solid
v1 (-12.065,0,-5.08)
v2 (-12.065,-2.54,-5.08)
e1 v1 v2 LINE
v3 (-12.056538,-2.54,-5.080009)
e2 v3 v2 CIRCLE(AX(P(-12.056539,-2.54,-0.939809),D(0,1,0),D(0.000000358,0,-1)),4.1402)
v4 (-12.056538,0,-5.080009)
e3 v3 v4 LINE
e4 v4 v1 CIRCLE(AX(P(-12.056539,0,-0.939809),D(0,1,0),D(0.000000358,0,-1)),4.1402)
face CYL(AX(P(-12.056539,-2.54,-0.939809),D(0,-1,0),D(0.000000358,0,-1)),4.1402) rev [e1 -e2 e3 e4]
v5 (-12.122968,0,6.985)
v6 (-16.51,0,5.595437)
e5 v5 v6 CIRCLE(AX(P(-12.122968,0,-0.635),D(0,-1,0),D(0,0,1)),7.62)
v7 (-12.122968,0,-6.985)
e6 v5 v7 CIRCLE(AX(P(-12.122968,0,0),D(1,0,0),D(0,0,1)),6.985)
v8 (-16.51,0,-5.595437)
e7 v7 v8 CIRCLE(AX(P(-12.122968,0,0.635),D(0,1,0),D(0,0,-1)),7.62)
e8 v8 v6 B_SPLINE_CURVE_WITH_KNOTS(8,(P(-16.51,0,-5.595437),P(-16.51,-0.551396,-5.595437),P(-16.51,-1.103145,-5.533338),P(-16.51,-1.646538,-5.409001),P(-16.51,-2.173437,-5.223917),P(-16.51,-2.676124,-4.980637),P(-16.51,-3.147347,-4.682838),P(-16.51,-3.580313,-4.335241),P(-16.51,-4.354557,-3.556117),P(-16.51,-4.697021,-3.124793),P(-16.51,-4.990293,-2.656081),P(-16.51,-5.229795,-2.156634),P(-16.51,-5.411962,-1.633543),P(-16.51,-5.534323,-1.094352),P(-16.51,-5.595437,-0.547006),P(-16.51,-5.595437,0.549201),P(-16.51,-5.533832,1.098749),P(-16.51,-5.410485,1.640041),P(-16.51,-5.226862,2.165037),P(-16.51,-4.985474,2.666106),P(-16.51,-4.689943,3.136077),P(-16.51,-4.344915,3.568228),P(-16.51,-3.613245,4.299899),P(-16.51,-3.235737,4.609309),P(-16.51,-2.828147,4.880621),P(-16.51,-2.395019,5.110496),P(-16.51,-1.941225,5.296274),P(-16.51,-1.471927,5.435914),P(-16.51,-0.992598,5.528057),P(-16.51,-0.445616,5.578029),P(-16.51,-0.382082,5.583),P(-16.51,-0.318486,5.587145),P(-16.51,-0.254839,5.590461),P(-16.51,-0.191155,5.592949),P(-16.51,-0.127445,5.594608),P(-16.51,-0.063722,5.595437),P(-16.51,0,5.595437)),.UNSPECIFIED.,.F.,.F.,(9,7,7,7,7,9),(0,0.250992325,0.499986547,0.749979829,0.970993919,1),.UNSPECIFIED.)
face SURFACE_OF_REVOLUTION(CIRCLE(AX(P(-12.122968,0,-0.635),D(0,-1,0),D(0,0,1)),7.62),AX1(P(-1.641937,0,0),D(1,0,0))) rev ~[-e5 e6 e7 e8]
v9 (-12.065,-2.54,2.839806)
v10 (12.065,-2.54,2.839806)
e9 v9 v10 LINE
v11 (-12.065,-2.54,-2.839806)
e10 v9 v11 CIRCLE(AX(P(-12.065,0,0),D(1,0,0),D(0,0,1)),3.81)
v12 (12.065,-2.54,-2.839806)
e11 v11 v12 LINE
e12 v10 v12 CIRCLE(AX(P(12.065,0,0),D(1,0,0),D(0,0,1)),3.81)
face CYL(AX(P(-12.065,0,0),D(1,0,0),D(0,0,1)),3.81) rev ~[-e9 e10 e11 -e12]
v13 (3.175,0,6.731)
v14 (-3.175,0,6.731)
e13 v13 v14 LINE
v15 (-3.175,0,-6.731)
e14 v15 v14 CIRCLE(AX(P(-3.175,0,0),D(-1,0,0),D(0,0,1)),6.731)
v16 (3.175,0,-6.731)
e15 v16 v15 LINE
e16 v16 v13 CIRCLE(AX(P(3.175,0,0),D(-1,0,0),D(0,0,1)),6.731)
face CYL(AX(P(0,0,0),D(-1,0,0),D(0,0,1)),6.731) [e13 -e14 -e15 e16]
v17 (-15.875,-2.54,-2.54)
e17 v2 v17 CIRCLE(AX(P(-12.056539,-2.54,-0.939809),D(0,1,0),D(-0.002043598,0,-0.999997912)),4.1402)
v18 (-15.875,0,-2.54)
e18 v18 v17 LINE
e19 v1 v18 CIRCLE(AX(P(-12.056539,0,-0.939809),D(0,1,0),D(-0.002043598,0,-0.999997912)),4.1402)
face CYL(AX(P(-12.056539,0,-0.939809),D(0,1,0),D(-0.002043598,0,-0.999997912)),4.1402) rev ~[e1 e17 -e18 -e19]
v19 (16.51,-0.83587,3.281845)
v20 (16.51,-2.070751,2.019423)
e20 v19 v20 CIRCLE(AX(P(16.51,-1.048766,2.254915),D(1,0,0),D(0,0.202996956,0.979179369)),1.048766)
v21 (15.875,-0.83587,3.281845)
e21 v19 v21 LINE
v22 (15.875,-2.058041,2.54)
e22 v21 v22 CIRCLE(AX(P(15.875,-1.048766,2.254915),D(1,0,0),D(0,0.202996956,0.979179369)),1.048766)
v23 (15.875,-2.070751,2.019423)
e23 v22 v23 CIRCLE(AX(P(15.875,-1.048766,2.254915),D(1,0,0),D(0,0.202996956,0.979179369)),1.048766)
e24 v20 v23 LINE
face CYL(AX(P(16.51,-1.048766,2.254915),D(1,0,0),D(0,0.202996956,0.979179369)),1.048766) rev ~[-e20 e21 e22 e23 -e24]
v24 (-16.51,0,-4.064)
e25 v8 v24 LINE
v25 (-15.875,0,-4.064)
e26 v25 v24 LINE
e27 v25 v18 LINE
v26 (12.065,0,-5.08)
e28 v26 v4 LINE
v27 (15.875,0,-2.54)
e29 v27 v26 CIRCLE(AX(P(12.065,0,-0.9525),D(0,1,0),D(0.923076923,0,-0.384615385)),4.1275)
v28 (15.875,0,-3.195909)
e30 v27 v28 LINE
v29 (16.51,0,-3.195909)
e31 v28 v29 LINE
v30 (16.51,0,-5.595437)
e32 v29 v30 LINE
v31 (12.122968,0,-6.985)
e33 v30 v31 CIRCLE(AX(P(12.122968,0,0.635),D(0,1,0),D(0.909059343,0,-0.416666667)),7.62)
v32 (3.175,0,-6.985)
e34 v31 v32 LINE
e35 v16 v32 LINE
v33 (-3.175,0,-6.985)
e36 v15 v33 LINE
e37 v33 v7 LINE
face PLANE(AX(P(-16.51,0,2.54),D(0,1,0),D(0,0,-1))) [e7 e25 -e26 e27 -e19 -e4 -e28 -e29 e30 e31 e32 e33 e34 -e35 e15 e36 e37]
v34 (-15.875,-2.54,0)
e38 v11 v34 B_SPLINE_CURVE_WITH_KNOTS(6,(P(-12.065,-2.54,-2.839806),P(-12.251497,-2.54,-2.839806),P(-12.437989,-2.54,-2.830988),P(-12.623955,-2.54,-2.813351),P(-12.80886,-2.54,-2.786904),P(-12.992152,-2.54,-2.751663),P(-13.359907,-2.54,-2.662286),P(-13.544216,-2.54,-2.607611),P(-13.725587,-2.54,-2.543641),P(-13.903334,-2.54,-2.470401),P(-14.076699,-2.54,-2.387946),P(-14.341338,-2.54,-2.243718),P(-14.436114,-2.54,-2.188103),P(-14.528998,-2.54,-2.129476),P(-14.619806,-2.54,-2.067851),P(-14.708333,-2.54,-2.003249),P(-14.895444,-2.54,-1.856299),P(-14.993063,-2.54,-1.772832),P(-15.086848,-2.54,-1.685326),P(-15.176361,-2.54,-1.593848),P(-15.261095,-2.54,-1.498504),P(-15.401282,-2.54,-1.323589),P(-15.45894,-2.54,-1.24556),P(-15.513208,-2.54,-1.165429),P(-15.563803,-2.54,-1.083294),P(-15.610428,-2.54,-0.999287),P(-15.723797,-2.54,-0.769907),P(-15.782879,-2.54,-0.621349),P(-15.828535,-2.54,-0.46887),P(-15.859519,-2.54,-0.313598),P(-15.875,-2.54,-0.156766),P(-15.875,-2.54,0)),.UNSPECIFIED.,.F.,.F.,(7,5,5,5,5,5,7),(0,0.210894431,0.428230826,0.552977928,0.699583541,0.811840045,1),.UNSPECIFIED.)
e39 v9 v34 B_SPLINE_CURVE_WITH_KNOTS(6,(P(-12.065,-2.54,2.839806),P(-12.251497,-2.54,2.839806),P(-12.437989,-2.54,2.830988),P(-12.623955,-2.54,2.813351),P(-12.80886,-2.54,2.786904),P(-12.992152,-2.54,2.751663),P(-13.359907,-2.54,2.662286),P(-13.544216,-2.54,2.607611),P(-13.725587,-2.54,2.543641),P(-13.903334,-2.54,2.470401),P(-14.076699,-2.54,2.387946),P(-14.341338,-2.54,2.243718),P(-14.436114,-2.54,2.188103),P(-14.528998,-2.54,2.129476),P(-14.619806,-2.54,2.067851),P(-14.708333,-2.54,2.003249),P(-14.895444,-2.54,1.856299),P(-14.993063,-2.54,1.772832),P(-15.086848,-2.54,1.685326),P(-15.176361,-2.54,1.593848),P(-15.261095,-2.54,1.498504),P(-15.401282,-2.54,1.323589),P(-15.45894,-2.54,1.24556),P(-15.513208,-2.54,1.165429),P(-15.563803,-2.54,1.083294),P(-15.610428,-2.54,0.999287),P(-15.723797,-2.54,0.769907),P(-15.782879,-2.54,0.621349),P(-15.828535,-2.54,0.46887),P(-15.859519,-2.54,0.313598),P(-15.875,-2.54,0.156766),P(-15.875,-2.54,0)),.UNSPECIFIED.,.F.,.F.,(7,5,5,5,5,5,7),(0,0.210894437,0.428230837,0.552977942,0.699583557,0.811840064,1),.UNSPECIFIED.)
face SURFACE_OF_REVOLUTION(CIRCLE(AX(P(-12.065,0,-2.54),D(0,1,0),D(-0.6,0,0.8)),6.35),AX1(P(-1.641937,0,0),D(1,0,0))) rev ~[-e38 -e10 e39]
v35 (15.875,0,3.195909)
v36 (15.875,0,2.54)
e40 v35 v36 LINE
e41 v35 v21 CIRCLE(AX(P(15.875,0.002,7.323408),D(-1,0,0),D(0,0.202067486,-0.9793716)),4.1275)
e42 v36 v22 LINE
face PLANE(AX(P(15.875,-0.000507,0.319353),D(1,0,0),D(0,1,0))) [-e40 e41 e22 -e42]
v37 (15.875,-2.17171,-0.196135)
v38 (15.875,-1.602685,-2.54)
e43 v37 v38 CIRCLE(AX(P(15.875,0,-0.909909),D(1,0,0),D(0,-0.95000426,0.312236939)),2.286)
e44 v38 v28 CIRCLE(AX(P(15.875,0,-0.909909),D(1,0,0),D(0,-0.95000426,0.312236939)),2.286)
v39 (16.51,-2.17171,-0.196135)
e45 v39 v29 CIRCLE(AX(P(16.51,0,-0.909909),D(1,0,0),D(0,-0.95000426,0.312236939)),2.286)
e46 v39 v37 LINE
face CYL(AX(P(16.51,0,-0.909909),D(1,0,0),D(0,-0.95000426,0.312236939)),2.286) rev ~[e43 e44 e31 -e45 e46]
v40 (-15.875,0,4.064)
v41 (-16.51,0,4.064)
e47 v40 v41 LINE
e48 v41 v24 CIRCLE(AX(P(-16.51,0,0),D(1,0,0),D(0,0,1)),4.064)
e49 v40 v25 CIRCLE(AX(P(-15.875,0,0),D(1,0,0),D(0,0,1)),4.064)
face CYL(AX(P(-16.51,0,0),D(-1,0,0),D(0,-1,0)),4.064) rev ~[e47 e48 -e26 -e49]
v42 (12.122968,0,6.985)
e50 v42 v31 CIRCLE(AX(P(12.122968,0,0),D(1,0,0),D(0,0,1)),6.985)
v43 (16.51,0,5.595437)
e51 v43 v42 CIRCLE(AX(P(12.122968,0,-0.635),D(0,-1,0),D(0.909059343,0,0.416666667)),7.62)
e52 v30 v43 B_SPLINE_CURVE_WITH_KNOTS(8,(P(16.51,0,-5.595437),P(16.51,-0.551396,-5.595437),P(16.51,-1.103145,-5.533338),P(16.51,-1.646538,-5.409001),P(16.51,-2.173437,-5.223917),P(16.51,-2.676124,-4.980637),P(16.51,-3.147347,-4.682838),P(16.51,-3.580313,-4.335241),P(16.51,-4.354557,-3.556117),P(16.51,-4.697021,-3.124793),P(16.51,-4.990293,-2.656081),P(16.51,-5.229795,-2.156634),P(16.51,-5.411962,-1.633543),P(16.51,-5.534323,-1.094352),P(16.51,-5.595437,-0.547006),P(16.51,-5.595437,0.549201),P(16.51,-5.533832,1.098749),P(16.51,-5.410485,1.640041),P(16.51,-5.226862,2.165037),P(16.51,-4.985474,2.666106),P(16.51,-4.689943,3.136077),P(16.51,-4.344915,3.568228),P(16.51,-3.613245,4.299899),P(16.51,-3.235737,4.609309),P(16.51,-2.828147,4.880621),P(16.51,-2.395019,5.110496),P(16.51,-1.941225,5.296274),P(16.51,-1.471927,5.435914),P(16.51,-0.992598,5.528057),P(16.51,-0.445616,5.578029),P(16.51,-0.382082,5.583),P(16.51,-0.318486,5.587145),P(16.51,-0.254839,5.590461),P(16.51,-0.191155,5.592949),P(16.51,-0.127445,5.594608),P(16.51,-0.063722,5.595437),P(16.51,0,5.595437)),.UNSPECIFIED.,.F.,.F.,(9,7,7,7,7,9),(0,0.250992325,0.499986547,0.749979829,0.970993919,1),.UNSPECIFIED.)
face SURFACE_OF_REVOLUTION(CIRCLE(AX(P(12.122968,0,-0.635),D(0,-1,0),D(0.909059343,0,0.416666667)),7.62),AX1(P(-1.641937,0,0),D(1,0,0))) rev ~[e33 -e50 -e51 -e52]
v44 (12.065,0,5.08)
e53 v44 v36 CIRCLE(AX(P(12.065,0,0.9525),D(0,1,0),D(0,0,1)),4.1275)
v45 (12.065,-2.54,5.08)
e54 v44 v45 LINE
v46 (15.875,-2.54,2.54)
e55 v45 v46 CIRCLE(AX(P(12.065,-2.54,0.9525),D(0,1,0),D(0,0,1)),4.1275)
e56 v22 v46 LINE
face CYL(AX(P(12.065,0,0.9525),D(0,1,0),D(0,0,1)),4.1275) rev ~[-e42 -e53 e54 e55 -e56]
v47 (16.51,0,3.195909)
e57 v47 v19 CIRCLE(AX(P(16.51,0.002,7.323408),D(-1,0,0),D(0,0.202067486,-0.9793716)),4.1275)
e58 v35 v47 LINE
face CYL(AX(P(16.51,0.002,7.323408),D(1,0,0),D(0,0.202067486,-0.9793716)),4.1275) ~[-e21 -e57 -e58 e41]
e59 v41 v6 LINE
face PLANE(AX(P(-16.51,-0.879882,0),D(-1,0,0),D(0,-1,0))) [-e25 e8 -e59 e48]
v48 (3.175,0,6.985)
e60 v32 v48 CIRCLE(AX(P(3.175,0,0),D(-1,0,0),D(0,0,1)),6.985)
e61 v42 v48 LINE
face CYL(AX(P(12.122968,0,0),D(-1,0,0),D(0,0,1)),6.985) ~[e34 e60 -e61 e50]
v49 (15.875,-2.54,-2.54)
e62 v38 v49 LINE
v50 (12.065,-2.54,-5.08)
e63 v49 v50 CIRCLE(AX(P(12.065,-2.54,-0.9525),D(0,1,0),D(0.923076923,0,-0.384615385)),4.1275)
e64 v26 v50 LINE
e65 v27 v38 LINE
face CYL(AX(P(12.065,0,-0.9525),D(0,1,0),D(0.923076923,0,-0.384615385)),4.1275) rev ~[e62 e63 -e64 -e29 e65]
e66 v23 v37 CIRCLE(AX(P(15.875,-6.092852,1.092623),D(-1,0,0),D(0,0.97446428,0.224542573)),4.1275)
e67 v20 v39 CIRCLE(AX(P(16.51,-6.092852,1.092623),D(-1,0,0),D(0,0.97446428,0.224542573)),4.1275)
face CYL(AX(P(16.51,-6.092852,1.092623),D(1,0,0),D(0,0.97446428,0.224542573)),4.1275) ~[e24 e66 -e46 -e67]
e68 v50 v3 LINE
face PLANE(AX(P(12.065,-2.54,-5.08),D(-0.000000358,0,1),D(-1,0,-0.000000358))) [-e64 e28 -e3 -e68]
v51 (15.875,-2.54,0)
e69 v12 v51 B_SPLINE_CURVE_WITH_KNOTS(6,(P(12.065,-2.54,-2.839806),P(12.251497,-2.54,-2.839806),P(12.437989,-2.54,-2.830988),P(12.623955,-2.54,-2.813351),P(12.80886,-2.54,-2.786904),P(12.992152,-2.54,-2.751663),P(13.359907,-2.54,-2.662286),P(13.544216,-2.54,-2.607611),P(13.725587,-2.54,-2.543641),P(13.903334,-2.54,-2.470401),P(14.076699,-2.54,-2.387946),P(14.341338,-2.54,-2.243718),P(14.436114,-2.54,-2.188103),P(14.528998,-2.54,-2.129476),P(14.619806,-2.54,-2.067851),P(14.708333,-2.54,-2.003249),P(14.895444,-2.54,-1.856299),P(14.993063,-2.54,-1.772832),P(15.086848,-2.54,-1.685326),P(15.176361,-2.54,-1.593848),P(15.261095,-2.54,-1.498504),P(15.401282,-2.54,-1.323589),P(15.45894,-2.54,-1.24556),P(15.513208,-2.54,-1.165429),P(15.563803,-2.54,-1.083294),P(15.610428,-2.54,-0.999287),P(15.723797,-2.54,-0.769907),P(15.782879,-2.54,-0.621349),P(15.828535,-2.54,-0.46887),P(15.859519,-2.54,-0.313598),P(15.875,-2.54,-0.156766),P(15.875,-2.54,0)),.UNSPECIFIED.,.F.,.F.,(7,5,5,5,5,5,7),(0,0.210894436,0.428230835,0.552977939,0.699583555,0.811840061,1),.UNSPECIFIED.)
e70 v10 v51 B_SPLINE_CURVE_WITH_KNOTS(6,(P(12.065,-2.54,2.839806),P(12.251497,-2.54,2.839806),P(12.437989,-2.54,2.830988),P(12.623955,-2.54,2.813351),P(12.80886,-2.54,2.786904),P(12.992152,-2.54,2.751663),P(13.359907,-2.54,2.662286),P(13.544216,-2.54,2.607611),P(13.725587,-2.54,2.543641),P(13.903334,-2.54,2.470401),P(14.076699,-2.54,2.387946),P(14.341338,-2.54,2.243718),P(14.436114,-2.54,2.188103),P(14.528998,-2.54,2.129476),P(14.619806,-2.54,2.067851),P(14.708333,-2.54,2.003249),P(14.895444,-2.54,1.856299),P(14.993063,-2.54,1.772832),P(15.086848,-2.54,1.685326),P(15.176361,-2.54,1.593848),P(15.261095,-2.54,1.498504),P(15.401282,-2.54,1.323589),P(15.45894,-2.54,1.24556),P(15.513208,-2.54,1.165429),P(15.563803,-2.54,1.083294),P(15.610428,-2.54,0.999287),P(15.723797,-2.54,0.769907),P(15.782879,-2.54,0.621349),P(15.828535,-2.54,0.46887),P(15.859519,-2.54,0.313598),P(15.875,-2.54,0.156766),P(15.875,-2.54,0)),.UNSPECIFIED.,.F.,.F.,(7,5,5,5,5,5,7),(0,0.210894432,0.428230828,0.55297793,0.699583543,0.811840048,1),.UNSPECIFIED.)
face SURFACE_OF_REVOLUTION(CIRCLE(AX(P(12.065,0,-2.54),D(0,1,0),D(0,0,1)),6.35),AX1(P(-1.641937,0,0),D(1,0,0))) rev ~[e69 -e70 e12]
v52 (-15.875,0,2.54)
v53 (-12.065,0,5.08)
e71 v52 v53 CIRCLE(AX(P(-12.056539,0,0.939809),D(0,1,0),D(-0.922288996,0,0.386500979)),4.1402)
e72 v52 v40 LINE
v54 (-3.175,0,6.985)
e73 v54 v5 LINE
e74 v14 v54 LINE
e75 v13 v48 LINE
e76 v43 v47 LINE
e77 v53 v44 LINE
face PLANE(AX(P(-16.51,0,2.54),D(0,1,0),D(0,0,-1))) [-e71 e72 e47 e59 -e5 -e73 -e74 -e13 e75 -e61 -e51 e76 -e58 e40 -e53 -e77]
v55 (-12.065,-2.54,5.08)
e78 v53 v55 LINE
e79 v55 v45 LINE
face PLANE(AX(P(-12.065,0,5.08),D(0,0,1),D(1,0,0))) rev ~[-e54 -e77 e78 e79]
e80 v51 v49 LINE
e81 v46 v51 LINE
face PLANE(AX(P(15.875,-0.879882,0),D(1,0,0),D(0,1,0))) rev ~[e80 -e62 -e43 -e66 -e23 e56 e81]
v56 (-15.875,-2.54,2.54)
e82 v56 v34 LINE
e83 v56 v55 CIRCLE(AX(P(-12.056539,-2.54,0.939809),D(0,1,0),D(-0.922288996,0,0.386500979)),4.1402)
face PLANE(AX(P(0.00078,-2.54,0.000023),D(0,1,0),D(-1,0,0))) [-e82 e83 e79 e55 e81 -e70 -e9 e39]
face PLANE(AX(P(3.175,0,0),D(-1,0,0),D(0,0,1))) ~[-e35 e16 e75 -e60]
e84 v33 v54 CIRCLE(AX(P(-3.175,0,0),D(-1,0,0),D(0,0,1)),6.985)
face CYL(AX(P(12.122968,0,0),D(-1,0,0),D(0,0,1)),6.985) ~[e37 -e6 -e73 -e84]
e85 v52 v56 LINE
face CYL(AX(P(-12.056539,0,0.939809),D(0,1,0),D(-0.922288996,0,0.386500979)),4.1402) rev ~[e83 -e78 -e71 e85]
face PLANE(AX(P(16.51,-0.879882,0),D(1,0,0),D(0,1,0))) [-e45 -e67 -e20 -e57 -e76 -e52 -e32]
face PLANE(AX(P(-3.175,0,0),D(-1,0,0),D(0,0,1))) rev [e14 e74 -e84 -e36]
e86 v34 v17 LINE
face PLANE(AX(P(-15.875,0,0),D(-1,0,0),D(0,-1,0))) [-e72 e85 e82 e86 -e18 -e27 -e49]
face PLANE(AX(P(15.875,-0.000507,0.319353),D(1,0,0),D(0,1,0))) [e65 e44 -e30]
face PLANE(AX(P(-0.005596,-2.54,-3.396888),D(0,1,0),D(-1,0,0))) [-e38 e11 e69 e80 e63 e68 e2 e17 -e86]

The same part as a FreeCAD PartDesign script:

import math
import FreeCAD as App
import Part
import Sketcher
Q = App.Units.Quantity

doc = App.newDocument("Part")
body = doc.addObject("PartDesign::Body", "Body")

# Sketch on XZ plane
sketch1 = body.newObject("Sketcher::SketchObject", "Sketch")
sketch1.AttachmentSupport = (doc.getObject("XZ_Plane"), [""])
sketch1.MapMode = "FlatFace"
sketch1.addGeometry(Part.ArcOfCircle(Part.Circle(App.Vector(12.1, -0.6, 0), App.Vector(0, 0, 1), 7.6), math.radians(25), math.radians(90)), False)
sketch1.addGeometry(Part.LineSegment(App.Vector(12.1, 7, 0), App.Vector(-12.1, 7, 0)), False)
sketch1.addGeometry(Part.ArcOfCircle(Part.Circle(App.Vector(-12.1, -0.6, 0), App.Vector(0, 0, 1), 7.6), math.radians(90), math.radians(155)), False)
sketch1.addGeometry(Part.LineSegment(App.Vector(-19.1, 2.5, 0), App.Vector(-15.9, 2.5, 0)), False)
sketch1.addGeometry(Part.ArcOfCircle(Part.Circle(App.Vector(-12.1, -2.5, 0), App.Vector(0, 0, 1), 6.3), math.radians(90), math.radians(127)), False)
sketch1.addGeometry(Part.LineSegment(App.Vector(-12.1, 3.8, 0), App.Vector(12.1, 3.8, 0)), False)
sketch1.addGeometry(Part.ArcOfCircle(Part.Circle(App.Vector(12.1, -2.5, 0), App.Vector(0, 0, 1), 6.3), math.radians(53), math.radians(90)), False)
sketch1.addGeometry(Part.LineSegment(App.Vector(15.9, 2.5, 0), App.Vector(19.1, 2.5, 0)), False)
sketch1.addConstraint(Sketcher.Constraint("Tangent", 0, 2, 1, 1))
sketch1.addConstraint(Sketcher.Constraint("Tangent", 1, 2, 2, 1))
sketch1.addConstraint(Sketcher.Constraint("Coincident", 2, 2, 3, 1))
sketch1.addConstraint(Sketcher.Constraint("Coincident", 3, 2, 4, 2))
sketch1.addConstraint(Sketcher.Constraint("Tangent", 4, 1, 5, 1))
sketch1.addConstraint(Sketcher.Constraint("Tangent", 5, 2, 6, 2))
sketch1.addConstraint(Sketcher.Constraint("Coincident", 6, 1, 7, 1))
sketch1.addConstraint(Sketcher.Constraint("Coincident", 7, 2, 0, 1))
sketch1.addConstraint(Sketcher.Constraint("Horizontal", 1))
sketch1.addConstraint(Sketcher.Constraint("Horizontal", 3))
sketch1.addConstraint(Sketcher.Constraint("Horizontal", 5))
sketch1.addConstraint(Sketcher.Constraint("Horizontal", 7))
sketch1.addConstraint(Sketcher.Constraint("Equal", 0, 2))
sketch1.addConstraint(Sketcher.Constraint("Equal", 4, 6))
sketch1.addConstraint(Sketcher.Constraint("Symmetric", 3, 2, 6, 1, -2))
sketch1.addConstraint(Sketcher.Constraint("Equal", 3, 7))
sketch1.addConstraint(Sketcher.Constraint("Radius", 0, Q("0.3 in")))
sketch1.addConstraint(Sketcher.Constraint("Radius", 4, Q("0.25 in")))
sketch1.addConstraint(Sketcher.Constraint("DistanceX", 5, 1, 5, 2, Q("0.95 in")))
sketch1.addConstraint(Sketcher.Constraint("DistanceY", 4, 3, -1, 1, Q("0.1 in")))
sketch1.addConstraint(Sketcher.Constraint("DistanceY", -1, 1, 2, 2, Q("0.1 in")))
sketch1.addConstraint(Sketcher.Constraint("DistanceX", 3, 1, 3, 2, Q("0.125 in")))
sketch1.addConstraint(Sketcher.Constraint("DistanceY", 0, 3, -1, 1, Q("0.025 in")))
revolution = body.newObject("PartDesign::Revolution", "Revolution")
revolution.Profile = sketch1
revolution.ReferenceAxis = (sketch1, ["H_Axis"])
revolution.Angle = 180

# Sketch on XZ plane
sketch2 = body.newObject("Sketcher::SketchObject", "Sketch001")
sketch2.AttachmentSupport = (doc.getObject("XZ_Plane"), [""])
sketch2.MapMode = "FlatFace"
sketch2.addGeometry(Part.ArcOfCircle(Part.Circle(App.Vector(-12.1, 2.5, 0), App.Vector(0, 0, 1), 6.3), math.radians(-127), math.radians(-90)), False)
sketch2.addGeometry(Part.LineSegment(App.Vector(-12.1, -3.8, 0), App.Vector(12.1, -3.8, 0)), False)
sketch2.addGeometry(Part.ArcOfCircle(Part.Circle(App.Vector(12.1, 2.5, 0), App.Vector(0, 0, 1), 6.3), math.radians(-90), math.radians(-53)), False)
sketch2.addGeometry(Part.ArcOfCircle(Part.Circle(App.Vector(12.1, -1, 0), App.Vector(0, 0, 1), 4.1), math.radians(-90), math.radians(-23)), False)
sketch2.addGeometry(Part.LineSegment(App.Vector(12.1, -5.1, 0), App.Vector(-12.1, -5.1, 0)), False)
sketch2.addGeometry(Part.ArcOfCircle(Part.Circle(App.Vector(-12.1, -0.9, 0), App.Vector(0, 0, 1), 4.1), math.radians(-157), math.radians(-90)), False)
sketch2.addGeometry(Part.ArcOfCircle(Part.Circle(App.Vector(-12.1, 0.9, 0), App.Vector(0, 0, 1), 4.1), math.radians(90), math.radians(157)), False)
sketch2.addGeometry(Part.LineSegment(App.Vector(-12.1, 5.1, 0), App.Vector(12.1, 5.1, 0)), False)
sketch2.addGeometry(Part.ArcOfCircle(Part.Circle(App.Vector(12.1, 1, 0), App.Vector(0, 0, 1), 4.1), math.radians(23), math.radians(90)), False)
sketch2.addGeometry(Part.ArcOfCircle(Part.Circle(App.Vector(12.1, -2.5, 0), App.Vector(0, 0, 1), 6.3), math.radians(53), math.radians(90)), False)
sketch2.addGeometry(Part.LineSegment(App.Vector(12.1, 3.8, 0), App.Vector(-12.1, 3.8, 0)), False)
sketch2.addGeometry(Part.ArcOfCircle(Part.Circle(App.Vector(-12.1, -2.5, 0), App.Vector(0, 0, 1), 6.3), math.radians(90), math.radians(127)), False)
sketch2.addConstraint(Sketcher.Constraint("Tangent", 0, 2, 1, 1))
sketch2.addConstraint(Sketcher.Constraint("Tangent", 1, 2, 2, 1))
sketch2.addConstraint(Sketcher.Constraint("Coincident", 2, 2, 3, 2))
sketch2.addConstraint(Sketcher.Constraint("Tangent", 3, 1, 4, 1))
sketch2.addConstraint(Sketcher.Constraint("Coincident", 4, 2, 5, 2))
sketch2.addConstraint(Sketcher.Constraint("Coincident", 5, 1, 0, 1))
sketch2.addConstraint(Sketcher.Constraint("Coincident", 6, 1, 7, 1))
sketch2.addConstraint(Sketcher.Constraint("Tangent", 7, 2, 8, 2))
sketch2.addConstraint(Sketcher.Constraint("Coincident", 8, 1, 9, 1))
sketch2.addConstraint(Sketcher.Constraint("Tangent", 9, 2, 10, 1))
sketch2.addConstraint(Sketcher.Constraint("Tangent", 10, 2, 11, 1))
sketch2.addConstraint(Sketcher.Constraint("Coincident", 11, 2, 6, 2))
sketch2.addConstraint(Sketcher.Constraint("Horizontal", 1))
sketch2.addConstraint(Sketcher.Constraint("Horizontal", 4))
sketch2.addConstraint(Sketcher.Constraint("Horizontal", 7))
sketch2.addConstraint(Sketcher.Constraint("Horizontal", 10))
sketch2.addConstraint(Sketcher.Constraint("Equal", 0, 2))
sketch2.addConstraint(Sketcher.Constraint("Equal", 5, 6))
sketch2.addConstraint(Sketcher.Constraint("Equal", 3, 8))
sketch2.addConstraint(Sketcher.Constraint("Equal", 2, 9))
sketch2.addConstraint(Sketcher.Constraint("Equal", 9, 11))
sketch2.addConstraint(Sketcher.Constraint("Symmetric", 0, 3, 9, 3, -1, 1))
sketch2.addConstraint(Sketcher.Constraint("Symmetric", 3, 1, 6, 1, -1, 1))
sketch2.addConstraint(Sketcher.Constraint("Symmetric", 2, 2, 11, 2, -1, 1))
sketch2.addConstraint(Sketcher.Constraint("Symmetric", 2, 2, 5, 1, -2))
sketch2.addConstraint(Sketcher.Constraint("Horizontal", 11, 3, 2, 2))
sketch2.addConstraint(Sketcher.Constraint("Horizontal", 2, 3, 8, 1))
sketch2.addConstraint(Sketcher.Constraint("Vertical", 2, 3, 3, 3))
sketch2.addConstraint(Sketcher.Constraint("Vertical", 0, 2, 4, 2))
sketch2.addConstraint(Sketcher.Constraint("Radius", 0, Q("0.25 in")))
sketch2.addConstraint(Sketcher.Constraint("Radius", 5, Q("0.163 in")))
sketch2.addConstraint(Sketcher.Constraint("DistanceX", 1, 1, 1, 2, Q("0.95 in")))
sketch2.addConstraint(Sketcher.Constraint("DistanceY", -1, 1, 0, 3, Q("0.1 in")))
sketch2.addConstraint(Sketcher.Constraint("DistanceY", 3, 1, -1, 1, Q("0.2 in")))
pocket1 = body.newObject("PartDesign::Pocket", "Pocket")
pocket1.Profile = sketch2
pocket1.Length = Q("0.1 in")
pocket1.Reversed = True

# Sketch on XZ plane
sketch3 = body.newObject("Sketcher::SketchObject", "Sketch002")
sketch3.AttachmentSupport = (doc.getObject("XZ_Plane"), [""])
sketch3.MapMode = "FlatFace"
sketch3.addGeometry(Part.LineSegment(App.Vector(3.2, 7.2, 0), App.Vector(3.2, 6.7, 0)), False)
sketch3.addGeometry(Part.LineSegment(App.Vector(3.2, 6.7, 0), App.Vector(-3.2, 6.7, 0)), False)
sketch3.addGeometry(Part.LineSegment(App.Vector(-3.2, 6.7, 0), App.Vector(-3.2, 7.2, 0)), False)
sketch3.addGeometry(Part.LineSegment(App.Vector(-3.2, 7.2, 0), App.Vector(3.2, 7.2, 0)), False)
sketch3.addConstraint(Sketcher.Constraint("Coincident", 0, 2, 1, 1))
sketch3.addConstraint(Sketcher.Constraint("Coincident", 1, 2, 2, 1))
sketch3.addConstraint(Sketcher.Constraint("Coincident", 2, 2, 3, 1))
sketch3.addConstraint(Sketcher.Constraint("Coincident", 3, 2, 0, 1))
sketch3.addConstraint(Sketcher.Constraint("Vertical", 0))
sketch3.addConstraint(Sketcher.Constraint("Horizontal", 1))
sketch3.addConstraint(Sketcher.Constraint("Vertical", 2))
sketch3.addConstraint(Sketcher.Constraint("Horizontal", 3))
sketch3.addConstraint(Sketcher.Constraint("DistanceX", 1, 2, 1, 1, Q("0.25 in")))
sketch3.addConstraint(Sketcher.Constraint("DistanceY", 0, 2, 0, 1, Q("0.02 in")))
sketch3.addConstraint(Sketcher.Constraint("DistanceX", -1, 1, 0, 2, Q("0.125 in")))
sketch3.addConstraint(Sketcher.Constraint("DistanceY", -1, 1, 0, 2, Q("0.265 in")))
groove = body.newObject("PartDesign::Groove", "Groove")
groove.Profile = sketch3
groove.ReferenceAxis = (sketch3, ["H_Axis"])
groove.Angle = 360

# Sketch on XZ plane
sketch4 = body.newObject("Sketcher::SketchObject", "Sketch003")
sketch4.AttachmentSupport = (doc.getObject("XZ_Plane"), [""])
sketch4.MapMode = "FlatFace"
sketch4.AttachmentOffset = App.Placement(App.Vector(0, 0, 0.1 * 25.4), App.Rotation())
sketch4.addGeometry(Part.LineSegment(App.Vector(-12.1, -3.3, 0), App.Vector(12.1, -3.3, 0)), False)
sketch4.addGeometry(Part.ArcOfCircle(Part.Circle(App.Vector(11.7, 3, 0), App.Vector(0, 0, 1), 6.3), math.radians(-87), math.radians(-49)), False)
sketch4.addGeometry(Part.LineSegment(App.Vector(15.9, -1.8, 0), App.Vector(15.9, -2.5, 0)), False)
sketch4.addGeometry(Part.ArcOfCircle(Part.Circle(App.Vector(12.1, 2.5, 0), App.Vector(0, 0, 1), 6.3), math.radians(-90), math.radians(-53)), False)
sketch4.addGeometry(Part.LineSegment(App.Vector(12.1, -3.8, 0), App.Vector(-12.1, -3.8, 0)), False)
sketch4.addGeometry(Part.ArcOfCircle(Part.Circle(App.Vector(-12.1, 2.5, 0), App.Vector(0, 0, 1), 6.3), math.radians(-127), math.radians(-90)), False)
sketch4.addGeometry(Part.LineSegment(App.Vector(-15.9, -2.5, 0), App.Vector(-15.9, -1.8, 0)), False)
sketch4.addGeometry(Part.ArcOfCircle(Part.Circle(App.Vector(-12.1, 2.2, 0), App.Vector(0, 0, 1), 5.5), math.radians(-134), math.radians(-90)), False)
sketch4.addGeometry(Part.ArcOfCircle(Part.Circle(App.Vector(-12.1, -2.5, 0), App.Vector(0, 0, 1), 6.3), math.radians(90), math.radians(127)), False)
sketch4.addGeometry(Part.LineSegment(App.Vector(-12.1, 3.8, 0), App.Vector(12.1, 3.8, 0)), False)
sketch4.addGeometry(Part.ArcOfCircle(Part.Circle(App.Vector(12.1, -2.5, 0), App.Vector(0, 0, 1), 6.3), math.radians(53), math.radians(90)), False)
sketch4.addGeometry(Part.LineSegment(App.Vector(15.9, 2.5, 0), App.Vector(15.9, 1.8, 0)), False)
sketch4.addGeometry(Part.ArcOfCircle(Part.Circle(App.Vector(11.7, -3, 0), App.Vector(0, 0, 1), 6.3), math.radians(49), math.radians(87)), False)
sketch4.addGeometry(Part.LineSegment(App.Vector(12.1, 3.3, 0), App.Vector(-12.1, 3.3, 0)), False)
sketch4.addGeometry(Part.ArcOfCircle(Part.Circle(App.Vector(-12.1, -2.2, 0), App.Vector(0, 0, 1), 5.5), math.radians(90), math.radians(134)), False)
sketch4.addGeometry(Part.LineSegment(App.Vector(-15.9, 1.8, 0), App.Vector(-15.9, 2.5, 0)), False)
sketch4.addConstraint(Sketcher.Constraint("Coincident", 0, 2, 1, 1))
sketch4.addConstraint(Sketcher.Constraint("Coincident", 1, 2, 2, 1))
sketch4.addConstraint(Sketcher.Constraint("Coincident", 2, 2, 3, 2))
sketch4.addConstraint(Sketcher.Constraint("Tangent", 3, 1, 4, 1))
sketch4.addConstraint(Sketcher.Constraint("Tangent", 4, 2, 5, 2))
sketch4.addConstraint(Sketcher.Constraint("Coincident", 5, 1, 6, 1))
sketch4.addConstraint(Sketcher.Constraint("Coincident", 6, 2, 7, 1))
sketch4.addConstraint(Sketcher.Constraint("Tangent", 7, 2, 0, 1))
sketch4.addConstraint(Sketcher.Constraint("Tangent", 8, 1, 9, 1))
sketch4.addConstraint(Sketcher.Constraint("Tangent", 9, 2, 10, 2))
sketch4.addConstraint(Sketcher.Constraint("Coincident", 10, 1, 11, 1))
sketch4.addConstraint(Sketcher.Constraint("Coincident", 11, 2, 12, 1))
sketch4.addConstraint(Sketcher.Constraint("Coincident", 12, 2, 13, 1))
sketch4.addConstraint(Sketcher.Constraint("Tangent", 13, 2, 14, 1))
sketch4.addConstraint(Sketcher.Constraint("Coincident", 14, 2, 15, 1))
sketch4.addConstraint(Sketcher.Constraint("Coincident", 15, 2, 8, 2))
sketch4.addConstraint(Sketcher.Constraint("Horizontal", 0))
sketch4.addConstraint(Sketcher.Constraint("Vertical", 2))
sketch4.addConstraint(Sketcher.Constraint("Horizontal", 4))
sketch4.addConstraint(Sketcher.Constraint("Vertical", 6))
sketch4.addConstraint(Sketcher.Constraint("Horizontal", 9))
sketch4.addConstraint(Sketcher.Constraint("Vertical", 11))
sketch4.addConstraint(Sketcher.Constraint("Horizontal", 13))
sketch4.addConstraint(Sketcher.Constraint("Vertical", 15))
sketch4.addConstraint(Sketcher.Constraint("Equal", 1, 3))
sketch4.addConstraint(Sketcher.Constraint("Equal", 3, 5))
sketch4.addConstraint(Sketcher.Constraint("Equal", 5, 8))
sketch4.addConstraint(Sketcher.Constraint("Equal", 8, 10))
sketch4.addConstraint(Sketcher.Constraint("Equal", 10, 12))
sketch4.addConstraint(Sketcher.Constraint("Equal", 7, 14))
sketch4.addConstraint(Sketcher.Constraint("Symmetric", 3, 3, 8, 3, -1, 1))
sketch4.addConstraint(Sketcher.Constraint("Symmetric", 5, 1, 10, 1, -1, 1))
sketch4.addConstraint(Sketcher.Constraint("Symmetric", 7, 2, 12, 2, -1, 1))
sketch4.addConstraint(Sketcher.Constraint("Symmetric", 1, 2, 14, 2, -1, 1))
sketch4.addConstraint(Sketcher.Constraint("Symmetric", 2, 2, 5, 1, -2))
sketch4.addConstraint(Sketcher.Constraint("Symmetric", 1, 3, 12, 3, -1))
sketch4.addConstraint(Sketcher.Constraint("Horizontal", 10, 3, 2, 2))
sketch4.addConstraint(Sketcher.Constraint("Horizontal", 1, 2, 6, 2))
sketch4.addConstraint(Sketcher.Constraint("Vertical", 5, 3, 7, 3))
sketch4.addConstraint(Sketcher.Constraint("Radius", 1, Q("0.25 in")))
sketch4.addConstraint(Sketcher.Constraint("DistanceX", 0, 1, 0, 2, Q("0.95 in")))
sketch4.addConstraint(Sketcher.Constraint("DistanceY", 2, 2, 2, 1, Q("0.03 in")))
sketch4.addConstraint(Sketcher.Constraint("DistanceY", -1, 1, 3, 3, Q("0.1 in")))
sketch4.addConstraint(Sketcher.Constraint("Radius", 7, Q("0.2175 in")))
pocket2 = body.newObject("PartDesign::Pocket", "Pocket001")
pocket2.Profile = sketch4
pocket2.Length = Q("0.1 in")

# Sketch on XZ plane
sketch5 = body.newObject("Sketcher::SketchObject", "Sketch004")
sketch5.AttachmentSupport = (doc.getObject("XZ_Plane"), [""])
sketch5.MapMode = "FlatFace"
sketch5.addGeometry(Part.LineSegment(App.Vector(19.1, 5.6, 0), App.Vector(19.1, -5.6, 0)), False)
sketch5.addGeometry(Part.LineSegment(App.Vector(19.1, -5.6, 0), App.Vector(16.5, -5.6, 0)), False)
sketch5.addGeometry(Part.LineSegment(App.Vector(16.5, -5.6, 0), App.Vector(16.5, 5.6, 0)), False)
sketch5.addGeometry(Part.LineSegment(App.Vector(16.5, 5.6, 0), App.Vector(19.1, 5.6, 0)), False)
sketch5.addGeometry(Part.LineSegment(App.Vector(-16.5, 5.6, 0), App.Vector(-16.5, -5.6, 0)), False)
sketch5.addGeometry(Part.LineSegment(App.Vector(-16.5, -5.6, 0), App.Vector(-19.1, -5.6, 0)), False)
sketch5.addGeometry(Part.LineSegment(App.Vector(-19.1, -5.6, 0), App.Vector(-19.1, 5.6, 0)), False)
sketch5.addGeometry(Part.LineSegment(App.Vector(-19.1, 5.6, 0), App.Vector(-16.5, 5.6, 0)), False)
sketch5.addConstraint(Sketcher.Constraint("Coincident", 0, 2, 1, 1))
sketch5.addConstraint(Sketcher.Constraint("Coincident", 1, 2, 2, 1))
sketch5.addConstraint(Sketcher.Constraint("Coincident", 2, 2, 3, 1))
sketch5.addConstraint(Sketcher.Constraint("Coincident", 3, 2, 0, 1))
sketch5.addConstraint(Sketcher.Constraint("Coincident", 4, 2, 5, 1))
sketch5.addConstraint(Sketcher.Constraint("Coincident", 5, 2, 6, 1))
sketch5.addConstraint(Sketcher.Constraint("Coincident", 6, 2, 7, 1))
sketch5.addConstraint(Sketcher.Constraint("Coincident", 7, 2, 4, 1))
sketch5.addConstraint(Sketcher.Constraint("Vertical", 0))
sketch5.addConstraint(Sketcher.Constraint("Horizontal", 1))
sketch5.addConstraint(Sketcher.Constraint("Vertical", 2))
sketch5.addConstraint(Sketcher.Constraint("Horizontal", 3))
sketch5.addConstraint(Sketcher.Constraint("Vertical", 4))
sketch5.addConstraint(Sketcher.Constraint("Horizontal", 5))
sketch5.addConstraint(Sketcher.Constraint("Vertical", 6))
sketch5.addConstraint(Sketcher.Constraint("Horizontal", 7))
sketch5.addConstraint(Sketcher.Constraint("Symmetric", 2, 2, 4, 2, -1, 1))
sketch5.addConstraint(Sketcher.Constraint("Symmetric", 0, 2, 6, 2, -1, 1))
sketch5.addConstraint(Sketcher.Constraint("Horizontal", 1, 2, 4, 2))
sketch5.addConstraint(Sketcher.Constraint("DistanceX", 1, 2, 1, 1, Q("0.1 in")))
sketch5.addConstraint(Sketcher.Constraint("DistanceX", 4, 2, 1, 2, Q("1.3 in")))
sketch5.addConstraint(Sketcher.Constraint("DistanceY", 0, 2, 0, 1, 11.190875))
pocket3 = body.newObject("PartDesign::Pocket", "Pocket002")
pocket3.Profile = sketch5
pocket3.Length = Q("1 in")
pocket3.Reversed = True

# Sketch on YZ plane
sketch6 = body.newObject("Sketcher::SketchObject", "Sketch005")
sketch6.AttachmentSupport = (doc.getObject("YZ_Plane"), [""])
sketch6.MapMode = "FlatFace"
sketch6.AttachmentOffset = App.Placement(App.Vector(0, 0, 0.65 * 25.4), App.Rotation())
sketch6.addGeometry(Part.LineSegment(App.Vector(0, -2.5, 0), App.Vector(0, 2.5, 0)), False)
sketch6.addGeometry(Part.ArcOfCircle(Part.Circle(App.Vector(0, 0, 0), App.Vector(0, 0, 1), 2.5), math.radians(90), math.radians(270)), False)
sketch6.addConstraint(Sketcher.Constraint("Coincident", 0, 1, 1, 2))
sketch6.addConstraint(Sketcher.Constraint("Coincident", 1, 1, 0, 2))
sketch6.addConstraint(Sketcher.Constraint("Vertical", 0))
sketch6.addConstraint(Sketcher.Constraint("Coincident", 1, 3, -1, 1))
sketch6.addConstraint(Sketcher.Constraint("PointOnObject", 0, 1, -2))
sketch6.addConstraint(Sketcher.Constraint("Radius", 1, Q("0.1 in")))
pad1 = body.newObject("PartDesign::Pad", "Pad")
pad1.Profile = sketch6
pad1.Length = Q("0.025 in")
pad1.Reversed = True

# Sketch on YZ plane
sketch7 = body.newObject("Sketcher::SketchObject", "Sketch006")
sketch7.AttachmentSupport = (doc.getObject("YZ_Plane"), [""])
sketch7.MapMode = "FlatFace"
sketch7.AttachmentOffset = App.Placement(App.Vector(0, 0, 0.65 * 25.4), App.Rotation())
sketch7.addGeometry(Part.ArcOfCircle(Part.Circle(App.Vector(-6.1, 1.1, 0), App.Vector(0, 0, 1), 4.1), math.radians(-18), math.radians(13)), False)
sketch7.addGeometry(Part.ArcOfCircle(Part.Circle(App.Vector(0, -0.9, 0), App.Vector(0, 0, 1), 2.3), math.radians(162), math.radians(378)), False)
sketch7.addGeometry(Part.ArcOfCircle(Part.Circle(App.Vector(6.1, 1.1, 0), App.Vector(0, 0, 1), 4.1), math.radians(167), math.radians(198)), False)
sketch7.addGeometry(Part.ArcOfCircle(Part.Circle(App.Vector(1, 2.3, 0), App.Vector(0, 0, 1), 1), math.radians(-13), math.radians(102)), False)
sketch7.addGeometry(Part.ArcOfCircle(Part.Circle(App.Vector(0, 7.3, 0), App.Vector(0, 0, 1), 4.1), math.radians(-102), math.radians(-78)), False)
sketch7.addGeometry(Part.ArcOfCircle(Part.Circle(App.Vector(-1, 2.3, 0), App.Vector(0, 0, 1), 1), math.radians(78), math.radians(193)), False)
sketch7.addConstraint(Sketcher.Constraint("Tangent", 0, 1, 1, 1))
sketch7.addConstraint(Sketcher.Constraint("Tangent", 1, 2, 2, 2))
sketch7.addConstraint(Sketcher.Constraint("Tangent", 2, 1, 3, 1))
sketch7.addConstraint(Sketcher.Constraint("Tangent", 3, 2, 4, 2))
sketch7.addConstraint(Sketcher.Constraint("Tangent", 4, 1, 5, 1))
sketch7.addConstraint(Sketcher.Constraint("Tangent", 5, 2, 0, 2))
sketch7.addConstraint(Sketcher.Constraint("Equal", 0, 2))
sketch7.addConstraint(Sketcher.Constraint("Equal", 2, 4))
sketch7.addConstraint(Sketcher.Constraint("PointOnObject", 1, 3, -2))
sketch7.addConstraint(Sketcher.Constraint("Horizontal", 3, 3, 5, 3))
sketch7.addConstraint(Sketcher.Constraint("Radius", 1, Q("0.09 in")))
sketch7.addConstraint(Sketcher.Constraint("Radius", 0, Q("0.1625 in")))
sketch7.addConstraint(Sketcher.Constraint("Radius", 3, 1.04775))
sketch7.addConstraint(Sketcher.Constraint("Radius", 5, 1.048766))
sketch7.addConstraint(Sketcher.Constraint("DistanceX", -1, 1, 4, 3, 0.002))
sketch7.addConstraint(Sketcher.Constraint("DistanceY", 2, 1, 3, 2, 1.260702))
sketch7.addConstraint(Sketcher.Constraint("DistanceX", 5, 3, 3, 2, 1.8848))
sketch7.addConstraint(Sketcher.Constraint("DistanceY", 1, 3, -1, 1, 0.909909))
pocket4 = body.newObject("PartDesign::Pocket", "Pocket003")
pocket4.Profile = sketch7
pocket4.Length = Q("0.025 in")

# Sketch on YZ plane
sketch8 = body.newObject("Sketcher::SketchObject", "Sketch007")
sketch8.AttachmentSupport = (doc.getObject("YZ_Plane"), [""])
sketch8.MapMode = "FlatFace"
sketch8.AttachmentOffset = App.Placement(App.Vector(0, 0, -0.65 * 25.4), App.Rotation())
sketch8.addGeometry(Part.LineSegment(App.Vector(0, 2.5, 0), App.Vector(0, -2.5, 0)), False)
sketch8.addGeometry(Part.ArcOfCircle(Part.Circle(App.Vector(0, 0, 0), App.Vector(0, 0, 1), 2.5), math.radians(90), math.radians(270)), False)
sketch8.addConstraint(Sketcher.Constraint("Coincident", 0, 1, 1, 1))
sketch8.addConstraint(Sketcher.Constraint("Coincident", 1, 2, 0, 2))
sketch8.addConstraint(Sketcher.Constraint("Vertical", 0))
sketch8.addConstraint(Sketcher.Constraint("Coincident", 1, 3, -1, 1))
sketch8.addConstraint(Sketcher.Constraint("PointOnObject", 0, 1, -2))
sketch8.addConstraint(Sketcher.Constraint("Radius", 1, Q("0.1 in")))
pad2 = body.newObject("PartDesign::Pad", "Pad001")
pad2.Profile = sketch8
pad2.Length = Q("0.025 in")

# Sketch on YZ plane
sketch9 = body.newObject("Sketcher::SketchObject", "Sketch008")
sketch9.AttachmentSupport = (doc.getObject("YZ_Plane"), [""])
sketch9.MapMode = "FlatFace"
sketch9.AttachmentOffset = App.Placement(App.Vector(0, 0, -0.65 * 25.4), App.Rotation())
sketch9.addGeometry(Part.Circle(App.Vector(0, 0, 0), App.Vector(0, 0, 1), 4.1), False)
sketch9.addConstraint(Sketcher.Constraint("Coincident", 0, 3, -1, 1))
sketch9.addConstraint(Sketcher.Constraint("Diameter", 0, Q("0.32 in")))
pocket5 = body.newObject("PartDesign::Pocket", "Pocket004")
pocket5.Profile = sketch9
pocket5.Length = Q("0.025 in")
pocket5.Reversed = True

# Sketch on XZ plane
sketch10 = body.newObject("Sketcher::SketchObject", "Sketch009")
sketch10.AttachmentSupport = (doc.getObject("XZ_Plane"), [""])
sketch10.MapMode = "FlatFace"
sketch10.AttachmentOffset = App.Placement(App.Vector(0, 0, 0.1 * 25.4), App.Rotation())
sketch10.addGeometry(Part.ArcOfCircle(Part.Circle(App.Vector(12.1, 1, 0), App.Vector(0, 0, 1), 4.1), math.radians(23), math.radians(90)), False)
sketch10.addGeometry(Part.LineSegment(App.Vector(15.9, 2.5, 0), App.Vector(15.9, -2.5, 0)), False)
sketch10.addGeometry(Part.ArcOfCircle(Part.Circle(App.Vector(12.1, -1, 0), App.Vector(0, 0, 1), 4.1), math.radians(-90), math.radians(-23)), False)
sketch10.addGeometry(Part.LineSegment(App.Vector(12.1, -5.1, 0), App.Vector(-12.1, -5.1, 0)), False)
sketch10.addGeometry(Part.ArcOfCircle(Part.Circle(App.Vector(-12.1, -0.9, 0), App.Vector(0, 0, 1), 4.1), math.radians(-157), math.radians(-90)), False)
sketch10.addGeometry(Part.LineSegment(App.Vector(-15.9, -2.5, 0), App.Vector(-15.9, 2.5, 0)), False)
sketch10.addGeometry(Part.ArcOfCircle(Part.Circle(App.Vector(-12.1, 0.9, 0), App.Vector(0, 0, 1), 4.1), math.radians(90), math.radians(157)), False)
sketch10.addGeometry(Part.LineSegment(App.Vector(-12.1, 5.1, 0), App.Vector(12.1, 5.1, 0)), False)
sketch10.addConstraint(Sketcher.Constraint("Coincident", 0, 1, 1, 1))
sketch10.addConstraint(Sketcher.Constraint("Coincident", 1, 2, 2, 2))
sketch10.addConstraint(Sketcher.Constraint("Tangent", 2, 1, 3, 1))
sketch10.addConstraint(Sketcher.Constraint("Tangent", 3, 2, 4, 2))
sketch10.addConstraint(Sketcher.Constraint("Coincident", 4, 1, 5, 1))
sketch10.addConstraint(Sketcher.Constraint("Coincident", 5, 2, 6, 2))
sketch10.addConstraint(Sketcher.Constraint("Coincident", 6, 1, 7, 1))
sketch10.addConstraint(Sketcher.Constraint("Tangent", 7, 2, 0, 2))
sketch10.addConstraint(Sketcher.Constraint("Vertical", 1))
sketch10.addConstraint(Sketcher.Constraint("Vertical", 5))
sketch10.addConstraint(Sketcher.Constraint("Horizontal", 7))
sketch10.addConstraint(Sketcher.Constraint("Equal", 0, 2))
sketch10.addConstraint(Sketcher.Constraint("Equal", 4, 6))
sketch10.addConstraint(Sketcher.Constraint("Symmetric", 0, 1, 4, 1, -1, 1))
sketch10.addConstraint(Sketcher.Constraint("Symmetric", 2, 1, 6, 1, -1, 1))
sketch10.addConstraint(Sketcher.Constraint("Symmetric", 4, 3, 6, 3, -1))
sketch10.addConstraint(Sketcher.Constraint("Horizontal", 1, 2, 4, 1))
sketch10.addConstraint(Sketcher.Constraint("DistanceY", 1, 2, 1, 1, Q("0.2 in")))
sketch10.addConstraint(Sketcher.Constraint("Radius", 4, Q("0.163 in")))
sketch10.addConstraint(Sketcher.Constraint("DistanceX", 7, 1, 7, 2, Q("0.95 in")))
sketch10.addConstraint(Sketcher.Constraint("DistanceY", 2, 1, -1, 1, Q("0.2 in")))
sketch10.addConstraint(Sketcher.Constraint("Radius", 0, Q("0.1625 in")))
pocket6 = body.newObject("PartDesign::Pocket", "Pocket005")
pocket6.Profile = sketch10
pocket6.Type = "ThroughAll"

doc.recompute()
